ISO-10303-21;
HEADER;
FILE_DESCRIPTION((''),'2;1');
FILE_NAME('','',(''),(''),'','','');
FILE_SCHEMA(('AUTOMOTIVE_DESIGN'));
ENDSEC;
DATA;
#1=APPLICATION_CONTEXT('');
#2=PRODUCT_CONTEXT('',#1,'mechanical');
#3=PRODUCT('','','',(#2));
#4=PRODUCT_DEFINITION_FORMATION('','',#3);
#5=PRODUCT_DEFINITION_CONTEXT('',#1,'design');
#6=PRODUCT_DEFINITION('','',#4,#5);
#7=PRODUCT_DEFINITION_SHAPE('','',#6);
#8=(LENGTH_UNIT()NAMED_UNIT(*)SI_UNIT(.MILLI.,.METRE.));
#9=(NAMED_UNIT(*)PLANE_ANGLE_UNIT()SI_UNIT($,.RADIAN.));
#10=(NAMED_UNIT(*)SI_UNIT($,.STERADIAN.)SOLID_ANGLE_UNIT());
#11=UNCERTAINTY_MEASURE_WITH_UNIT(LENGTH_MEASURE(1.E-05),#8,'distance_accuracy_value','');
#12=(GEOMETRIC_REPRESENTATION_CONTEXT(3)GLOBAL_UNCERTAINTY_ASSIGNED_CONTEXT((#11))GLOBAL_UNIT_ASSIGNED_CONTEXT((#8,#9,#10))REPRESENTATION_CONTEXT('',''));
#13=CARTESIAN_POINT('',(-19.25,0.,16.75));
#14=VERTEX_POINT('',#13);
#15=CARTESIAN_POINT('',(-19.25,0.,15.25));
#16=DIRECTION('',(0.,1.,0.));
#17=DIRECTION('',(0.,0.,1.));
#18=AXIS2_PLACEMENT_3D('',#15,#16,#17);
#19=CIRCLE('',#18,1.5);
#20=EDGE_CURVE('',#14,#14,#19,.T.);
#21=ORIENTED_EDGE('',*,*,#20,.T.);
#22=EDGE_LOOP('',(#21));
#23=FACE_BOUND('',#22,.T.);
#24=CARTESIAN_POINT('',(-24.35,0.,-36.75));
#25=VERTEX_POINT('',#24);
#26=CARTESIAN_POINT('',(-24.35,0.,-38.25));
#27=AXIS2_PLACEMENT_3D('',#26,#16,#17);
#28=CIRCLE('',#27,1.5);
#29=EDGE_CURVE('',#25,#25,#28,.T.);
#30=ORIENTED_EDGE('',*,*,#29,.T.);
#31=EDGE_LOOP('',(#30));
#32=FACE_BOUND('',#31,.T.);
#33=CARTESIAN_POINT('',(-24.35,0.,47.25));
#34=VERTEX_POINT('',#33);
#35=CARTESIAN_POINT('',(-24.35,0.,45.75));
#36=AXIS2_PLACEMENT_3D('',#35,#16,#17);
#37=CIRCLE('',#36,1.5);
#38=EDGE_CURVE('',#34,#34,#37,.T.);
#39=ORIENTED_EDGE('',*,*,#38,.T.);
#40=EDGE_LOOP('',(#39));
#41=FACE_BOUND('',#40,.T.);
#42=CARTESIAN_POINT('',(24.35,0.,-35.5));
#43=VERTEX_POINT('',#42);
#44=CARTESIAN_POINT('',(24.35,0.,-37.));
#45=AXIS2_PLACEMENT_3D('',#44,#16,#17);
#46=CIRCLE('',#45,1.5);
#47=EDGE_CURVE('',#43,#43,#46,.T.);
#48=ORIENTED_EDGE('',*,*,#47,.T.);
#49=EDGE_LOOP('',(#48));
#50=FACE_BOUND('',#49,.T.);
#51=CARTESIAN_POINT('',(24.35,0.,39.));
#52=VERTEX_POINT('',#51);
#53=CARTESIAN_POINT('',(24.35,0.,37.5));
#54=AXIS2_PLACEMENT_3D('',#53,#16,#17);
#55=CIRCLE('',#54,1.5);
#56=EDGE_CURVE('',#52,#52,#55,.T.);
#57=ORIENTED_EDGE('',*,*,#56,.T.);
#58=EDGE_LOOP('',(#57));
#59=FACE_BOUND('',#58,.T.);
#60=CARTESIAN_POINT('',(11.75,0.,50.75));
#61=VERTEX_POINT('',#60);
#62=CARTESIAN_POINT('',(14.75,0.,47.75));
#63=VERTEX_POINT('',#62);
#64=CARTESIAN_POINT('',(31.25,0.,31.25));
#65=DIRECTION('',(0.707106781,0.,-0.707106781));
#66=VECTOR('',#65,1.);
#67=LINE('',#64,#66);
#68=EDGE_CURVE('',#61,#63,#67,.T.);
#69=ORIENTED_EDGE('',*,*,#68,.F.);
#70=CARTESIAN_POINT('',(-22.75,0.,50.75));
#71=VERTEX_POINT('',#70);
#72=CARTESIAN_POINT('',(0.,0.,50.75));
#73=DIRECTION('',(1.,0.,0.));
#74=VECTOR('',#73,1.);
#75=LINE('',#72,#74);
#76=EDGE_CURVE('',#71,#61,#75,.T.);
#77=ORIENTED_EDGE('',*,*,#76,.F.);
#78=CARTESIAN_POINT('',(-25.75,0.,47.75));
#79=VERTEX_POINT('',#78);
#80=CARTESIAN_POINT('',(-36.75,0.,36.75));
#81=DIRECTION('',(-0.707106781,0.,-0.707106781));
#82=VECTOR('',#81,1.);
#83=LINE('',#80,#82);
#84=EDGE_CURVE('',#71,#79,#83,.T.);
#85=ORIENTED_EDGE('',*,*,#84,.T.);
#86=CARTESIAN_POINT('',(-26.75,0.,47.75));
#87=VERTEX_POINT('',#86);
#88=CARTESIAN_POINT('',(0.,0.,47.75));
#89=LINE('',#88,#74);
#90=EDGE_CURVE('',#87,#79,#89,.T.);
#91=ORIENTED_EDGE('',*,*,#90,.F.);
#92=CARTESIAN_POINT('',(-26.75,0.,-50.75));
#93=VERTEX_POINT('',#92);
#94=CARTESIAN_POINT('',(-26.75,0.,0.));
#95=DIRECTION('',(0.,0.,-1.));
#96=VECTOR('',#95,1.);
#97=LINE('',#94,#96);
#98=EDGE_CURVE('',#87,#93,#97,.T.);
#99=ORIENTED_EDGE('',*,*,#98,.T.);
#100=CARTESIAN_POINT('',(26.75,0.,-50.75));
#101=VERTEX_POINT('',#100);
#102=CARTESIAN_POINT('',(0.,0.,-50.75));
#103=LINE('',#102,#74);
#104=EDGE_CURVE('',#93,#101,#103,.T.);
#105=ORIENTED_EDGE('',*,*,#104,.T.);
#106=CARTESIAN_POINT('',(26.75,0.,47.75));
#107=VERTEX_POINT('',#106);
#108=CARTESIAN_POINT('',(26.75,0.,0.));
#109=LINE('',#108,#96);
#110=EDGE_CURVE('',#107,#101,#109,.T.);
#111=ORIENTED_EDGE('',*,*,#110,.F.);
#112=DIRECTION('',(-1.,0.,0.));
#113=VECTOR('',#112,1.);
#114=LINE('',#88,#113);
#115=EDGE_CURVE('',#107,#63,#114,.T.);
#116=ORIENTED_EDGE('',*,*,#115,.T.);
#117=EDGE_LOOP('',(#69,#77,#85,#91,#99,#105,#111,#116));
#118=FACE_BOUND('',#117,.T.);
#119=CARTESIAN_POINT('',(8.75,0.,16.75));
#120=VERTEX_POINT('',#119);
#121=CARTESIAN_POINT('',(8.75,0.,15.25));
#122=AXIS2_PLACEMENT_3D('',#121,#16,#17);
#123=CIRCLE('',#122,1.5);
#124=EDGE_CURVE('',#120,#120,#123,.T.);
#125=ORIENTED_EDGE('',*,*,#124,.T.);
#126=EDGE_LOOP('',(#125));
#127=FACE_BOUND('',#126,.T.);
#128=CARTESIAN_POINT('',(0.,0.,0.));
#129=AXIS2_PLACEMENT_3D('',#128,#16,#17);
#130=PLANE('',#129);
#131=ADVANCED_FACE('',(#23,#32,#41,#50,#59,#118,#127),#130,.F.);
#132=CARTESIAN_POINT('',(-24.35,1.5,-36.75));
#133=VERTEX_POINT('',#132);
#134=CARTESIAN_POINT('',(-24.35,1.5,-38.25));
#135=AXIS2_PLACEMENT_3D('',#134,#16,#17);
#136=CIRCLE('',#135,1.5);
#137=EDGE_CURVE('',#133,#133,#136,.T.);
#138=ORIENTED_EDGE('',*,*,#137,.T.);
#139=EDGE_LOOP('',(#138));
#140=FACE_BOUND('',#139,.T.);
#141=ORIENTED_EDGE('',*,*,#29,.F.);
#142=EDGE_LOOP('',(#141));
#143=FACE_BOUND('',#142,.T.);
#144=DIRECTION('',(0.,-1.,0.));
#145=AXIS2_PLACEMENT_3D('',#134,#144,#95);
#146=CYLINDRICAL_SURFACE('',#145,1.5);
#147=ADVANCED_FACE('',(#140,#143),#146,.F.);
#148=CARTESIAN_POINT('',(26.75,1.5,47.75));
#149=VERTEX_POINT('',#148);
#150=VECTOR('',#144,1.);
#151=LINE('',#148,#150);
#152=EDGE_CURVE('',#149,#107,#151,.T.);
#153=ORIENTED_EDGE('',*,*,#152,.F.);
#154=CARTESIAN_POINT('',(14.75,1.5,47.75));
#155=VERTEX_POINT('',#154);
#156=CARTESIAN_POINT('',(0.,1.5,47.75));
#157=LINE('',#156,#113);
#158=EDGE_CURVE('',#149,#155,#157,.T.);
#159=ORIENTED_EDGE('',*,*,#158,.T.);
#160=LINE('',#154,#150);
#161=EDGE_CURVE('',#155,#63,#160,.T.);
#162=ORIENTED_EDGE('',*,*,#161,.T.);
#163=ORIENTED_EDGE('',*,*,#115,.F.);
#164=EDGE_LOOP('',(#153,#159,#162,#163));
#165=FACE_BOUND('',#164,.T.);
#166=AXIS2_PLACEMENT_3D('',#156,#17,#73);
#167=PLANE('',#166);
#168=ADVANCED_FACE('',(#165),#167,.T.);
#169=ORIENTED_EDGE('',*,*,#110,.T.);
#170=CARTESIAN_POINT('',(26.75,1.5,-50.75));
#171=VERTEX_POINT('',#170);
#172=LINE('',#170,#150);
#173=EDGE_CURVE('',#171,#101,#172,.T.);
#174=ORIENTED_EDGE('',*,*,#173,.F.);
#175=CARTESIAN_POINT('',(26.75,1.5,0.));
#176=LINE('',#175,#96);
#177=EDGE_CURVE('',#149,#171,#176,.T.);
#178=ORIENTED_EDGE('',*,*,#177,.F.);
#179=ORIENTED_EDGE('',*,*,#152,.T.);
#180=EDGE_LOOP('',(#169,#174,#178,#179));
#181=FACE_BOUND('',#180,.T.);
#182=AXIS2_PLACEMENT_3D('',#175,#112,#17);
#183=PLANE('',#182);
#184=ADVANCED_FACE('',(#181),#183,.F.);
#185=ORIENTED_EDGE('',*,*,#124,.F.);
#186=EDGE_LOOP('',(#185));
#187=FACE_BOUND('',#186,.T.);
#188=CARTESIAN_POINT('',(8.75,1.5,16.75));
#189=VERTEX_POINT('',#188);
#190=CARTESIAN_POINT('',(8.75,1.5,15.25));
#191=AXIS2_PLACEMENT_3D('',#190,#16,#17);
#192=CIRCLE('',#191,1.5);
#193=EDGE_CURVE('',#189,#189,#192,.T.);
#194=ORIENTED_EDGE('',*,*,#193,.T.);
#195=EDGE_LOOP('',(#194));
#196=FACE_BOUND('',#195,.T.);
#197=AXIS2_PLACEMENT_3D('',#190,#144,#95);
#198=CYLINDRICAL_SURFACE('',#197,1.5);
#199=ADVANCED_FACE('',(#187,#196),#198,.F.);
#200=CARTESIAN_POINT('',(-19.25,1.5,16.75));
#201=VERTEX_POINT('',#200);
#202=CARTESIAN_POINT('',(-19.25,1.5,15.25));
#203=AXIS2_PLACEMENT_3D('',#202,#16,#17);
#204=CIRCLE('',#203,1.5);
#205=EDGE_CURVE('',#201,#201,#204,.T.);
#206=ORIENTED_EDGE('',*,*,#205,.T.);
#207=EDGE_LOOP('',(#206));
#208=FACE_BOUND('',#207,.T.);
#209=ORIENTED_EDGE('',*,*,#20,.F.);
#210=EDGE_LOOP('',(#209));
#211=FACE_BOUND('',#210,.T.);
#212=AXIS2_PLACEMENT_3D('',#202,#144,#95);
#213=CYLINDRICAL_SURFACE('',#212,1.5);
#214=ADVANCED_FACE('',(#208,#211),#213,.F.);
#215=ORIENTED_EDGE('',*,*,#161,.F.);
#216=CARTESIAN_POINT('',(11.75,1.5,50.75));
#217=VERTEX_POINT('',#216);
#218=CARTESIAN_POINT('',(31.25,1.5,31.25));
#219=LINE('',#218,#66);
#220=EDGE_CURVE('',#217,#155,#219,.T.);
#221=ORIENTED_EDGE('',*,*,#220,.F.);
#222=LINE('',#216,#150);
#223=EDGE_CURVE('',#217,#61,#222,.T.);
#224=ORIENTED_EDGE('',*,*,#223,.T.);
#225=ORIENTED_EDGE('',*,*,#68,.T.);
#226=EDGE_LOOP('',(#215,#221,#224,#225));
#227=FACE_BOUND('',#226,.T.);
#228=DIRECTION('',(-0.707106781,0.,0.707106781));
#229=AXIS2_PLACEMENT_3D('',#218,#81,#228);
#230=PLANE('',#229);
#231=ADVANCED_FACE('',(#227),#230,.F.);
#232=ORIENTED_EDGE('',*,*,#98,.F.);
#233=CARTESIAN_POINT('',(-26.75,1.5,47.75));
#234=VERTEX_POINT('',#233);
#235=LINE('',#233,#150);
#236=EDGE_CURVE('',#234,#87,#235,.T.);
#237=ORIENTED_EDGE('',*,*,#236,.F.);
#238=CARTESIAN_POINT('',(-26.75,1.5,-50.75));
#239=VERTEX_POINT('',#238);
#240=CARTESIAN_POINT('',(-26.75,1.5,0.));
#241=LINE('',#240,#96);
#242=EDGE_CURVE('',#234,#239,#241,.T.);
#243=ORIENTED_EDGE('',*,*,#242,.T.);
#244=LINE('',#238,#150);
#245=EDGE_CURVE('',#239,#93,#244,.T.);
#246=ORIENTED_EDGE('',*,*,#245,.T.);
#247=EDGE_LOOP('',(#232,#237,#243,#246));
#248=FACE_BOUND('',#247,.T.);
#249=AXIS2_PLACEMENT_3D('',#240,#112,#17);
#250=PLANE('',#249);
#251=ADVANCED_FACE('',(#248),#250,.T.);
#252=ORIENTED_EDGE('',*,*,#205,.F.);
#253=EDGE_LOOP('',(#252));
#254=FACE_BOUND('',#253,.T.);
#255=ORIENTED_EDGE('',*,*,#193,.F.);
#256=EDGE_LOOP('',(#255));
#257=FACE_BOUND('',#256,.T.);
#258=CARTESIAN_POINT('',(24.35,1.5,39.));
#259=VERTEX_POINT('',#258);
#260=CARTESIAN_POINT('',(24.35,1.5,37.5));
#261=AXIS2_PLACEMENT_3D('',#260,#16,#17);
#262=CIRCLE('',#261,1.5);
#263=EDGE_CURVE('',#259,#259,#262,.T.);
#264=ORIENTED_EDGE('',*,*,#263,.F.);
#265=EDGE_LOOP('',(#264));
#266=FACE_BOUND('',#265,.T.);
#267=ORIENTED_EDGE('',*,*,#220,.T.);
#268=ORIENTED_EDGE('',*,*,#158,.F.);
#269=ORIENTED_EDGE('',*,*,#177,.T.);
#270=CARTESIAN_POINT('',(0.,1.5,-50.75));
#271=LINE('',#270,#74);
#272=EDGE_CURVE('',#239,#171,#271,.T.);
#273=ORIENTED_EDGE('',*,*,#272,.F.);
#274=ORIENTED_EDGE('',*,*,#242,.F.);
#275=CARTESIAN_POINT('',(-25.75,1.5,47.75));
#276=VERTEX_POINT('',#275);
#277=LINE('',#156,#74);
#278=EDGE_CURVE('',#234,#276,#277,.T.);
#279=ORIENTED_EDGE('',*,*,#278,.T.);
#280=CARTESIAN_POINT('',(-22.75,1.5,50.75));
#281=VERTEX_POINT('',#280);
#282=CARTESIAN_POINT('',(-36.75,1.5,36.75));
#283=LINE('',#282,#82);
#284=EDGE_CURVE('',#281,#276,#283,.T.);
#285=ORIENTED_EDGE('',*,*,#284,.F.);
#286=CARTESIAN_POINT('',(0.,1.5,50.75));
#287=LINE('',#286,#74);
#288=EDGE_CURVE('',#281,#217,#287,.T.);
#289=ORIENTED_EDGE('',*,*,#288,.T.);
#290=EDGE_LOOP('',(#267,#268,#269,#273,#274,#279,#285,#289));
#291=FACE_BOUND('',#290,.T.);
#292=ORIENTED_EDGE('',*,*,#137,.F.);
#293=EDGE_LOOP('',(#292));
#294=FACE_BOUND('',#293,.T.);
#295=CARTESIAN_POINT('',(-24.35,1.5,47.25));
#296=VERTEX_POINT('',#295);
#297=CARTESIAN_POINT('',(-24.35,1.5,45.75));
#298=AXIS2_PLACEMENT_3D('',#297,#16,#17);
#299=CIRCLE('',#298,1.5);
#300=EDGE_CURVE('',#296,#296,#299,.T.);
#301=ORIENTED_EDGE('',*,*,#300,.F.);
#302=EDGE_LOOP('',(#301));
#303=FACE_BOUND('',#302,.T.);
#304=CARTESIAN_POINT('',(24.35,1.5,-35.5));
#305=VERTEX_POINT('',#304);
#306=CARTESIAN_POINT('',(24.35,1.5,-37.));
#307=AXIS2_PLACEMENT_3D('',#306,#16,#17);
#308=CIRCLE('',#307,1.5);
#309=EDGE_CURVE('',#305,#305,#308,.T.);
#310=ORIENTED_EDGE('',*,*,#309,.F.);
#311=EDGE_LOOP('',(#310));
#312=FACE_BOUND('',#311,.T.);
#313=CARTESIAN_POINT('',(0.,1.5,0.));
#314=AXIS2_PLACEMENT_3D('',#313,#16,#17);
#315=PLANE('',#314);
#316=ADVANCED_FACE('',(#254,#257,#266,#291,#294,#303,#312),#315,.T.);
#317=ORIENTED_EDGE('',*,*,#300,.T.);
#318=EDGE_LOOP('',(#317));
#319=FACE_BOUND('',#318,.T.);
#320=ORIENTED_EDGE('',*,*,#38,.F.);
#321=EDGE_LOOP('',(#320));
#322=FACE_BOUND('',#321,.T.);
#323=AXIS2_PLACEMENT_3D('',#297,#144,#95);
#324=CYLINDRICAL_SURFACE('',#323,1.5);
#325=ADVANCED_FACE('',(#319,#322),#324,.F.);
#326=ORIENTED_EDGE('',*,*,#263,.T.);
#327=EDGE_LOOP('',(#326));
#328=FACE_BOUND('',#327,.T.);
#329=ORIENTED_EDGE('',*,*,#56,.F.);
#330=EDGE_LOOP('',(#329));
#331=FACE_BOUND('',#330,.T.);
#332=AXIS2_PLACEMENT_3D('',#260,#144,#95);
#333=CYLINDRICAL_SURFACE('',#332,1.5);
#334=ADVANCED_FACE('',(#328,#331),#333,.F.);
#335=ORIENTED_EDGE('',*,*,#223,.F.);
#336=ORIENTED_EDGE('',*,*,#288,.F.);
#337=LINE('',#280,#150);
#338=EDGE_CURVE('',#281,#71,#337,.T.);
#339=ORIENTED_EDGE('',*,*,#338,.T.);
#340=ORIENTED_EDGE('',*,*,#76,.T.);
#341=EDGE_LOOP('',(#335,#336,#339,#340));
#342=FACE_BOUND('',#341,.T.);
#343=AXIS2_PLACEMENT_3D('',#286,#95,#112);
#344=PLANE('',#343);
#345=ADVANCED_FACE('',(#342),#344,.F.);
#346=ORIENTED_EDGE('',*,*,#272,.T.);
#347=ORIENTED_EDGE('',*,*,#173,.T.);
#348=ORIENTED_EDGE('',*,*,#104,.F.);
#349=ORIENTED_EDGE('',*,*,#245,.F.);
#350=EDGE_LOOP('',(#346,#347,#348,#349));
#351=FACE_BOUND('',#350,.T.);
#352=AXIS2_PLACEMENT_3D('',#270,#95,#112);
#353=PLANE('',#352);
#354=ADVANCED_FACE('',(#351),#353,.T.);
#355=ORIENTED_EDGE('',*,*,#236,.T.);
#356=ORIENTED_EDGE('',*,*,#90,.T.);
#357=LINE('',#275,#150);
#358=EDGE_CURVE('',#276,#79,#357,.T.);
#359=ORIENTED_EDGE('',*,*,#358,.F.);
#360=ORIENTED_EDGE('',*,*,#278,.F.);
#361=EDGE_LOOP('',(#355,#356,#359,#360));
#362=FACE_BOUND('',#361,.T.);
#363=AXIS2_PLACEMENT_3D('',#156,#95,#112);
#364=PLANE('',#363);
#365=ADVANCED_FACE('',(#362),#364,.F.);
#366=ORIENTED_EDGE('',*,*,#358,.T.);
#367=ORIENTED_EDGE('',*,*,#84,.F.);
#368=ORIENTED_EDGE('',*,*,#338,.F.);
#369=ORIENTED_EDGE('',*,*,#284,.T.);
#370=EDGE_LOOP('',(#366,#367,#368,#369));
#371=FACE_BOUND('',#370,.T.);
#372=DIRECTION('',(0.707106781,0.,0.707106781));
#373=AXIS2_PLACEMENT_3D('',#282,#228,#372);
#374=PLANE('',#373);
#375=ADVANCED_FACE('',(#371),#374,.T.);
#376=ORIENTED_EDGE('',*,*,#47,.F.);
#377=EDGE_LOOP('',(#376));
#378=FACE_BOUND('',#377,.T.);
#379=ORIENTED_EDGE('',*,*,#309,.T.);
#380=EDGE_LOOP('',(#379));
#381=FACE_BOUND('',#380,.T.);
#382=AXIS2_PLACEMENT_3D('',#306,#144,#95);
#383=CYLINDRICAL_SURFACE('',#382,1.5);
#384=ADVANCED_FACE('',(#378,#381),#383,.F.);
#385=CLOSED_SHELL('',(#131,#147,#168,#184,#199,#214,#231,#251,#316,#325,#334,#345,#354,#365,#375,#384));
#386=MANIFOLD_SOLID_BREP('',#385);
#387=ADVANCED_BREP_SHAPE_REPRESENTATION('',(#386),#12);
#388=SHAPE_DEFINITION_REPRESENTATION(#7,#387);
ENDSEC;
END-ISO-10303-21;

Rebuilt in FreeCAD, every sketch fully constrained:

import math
import FreeCAD as App
import Part
import Sketcher

V = App.Vector

doc = App.newDocument("Part")
body = doc.addObject("PartDesign::Body", "Body")

sketch1 = body.newObject("Sketcher::SketchObject", "Sketch")
sketch1.AttachmentSupport = (doc.getObject("XZ_Plane"), [""])
sketch1.MapMode = "FlatFace"
sketch1.addGeometry(Part.LineSegment(V(-22.75, 50.75, 0), V(11.75, 50.75, 0)), False)
sketch1.addGeometry(Part.LineSegment(V(11.75, 50.75, 0), V(14.75, 47.75, 0)), False)
sketch1.addGeometry(Part.LineSegment(V(14.75, 47.75, 0), V(26.75, 47.75, 0)), False)
sketch1.addGeometry(Part.LineSegment(V(26.75, 47.75, 0), V(26.75, -50.75, 0)), False)
sketch1.addGeometry(Part.LineSegment(V(26.75, -50.75, 0), V(-26.75, -50.75, 0)), False)
sketch1.addGeometry(Part.LineSegment(V(-26.75, -50.75, 0), V(-26.75, 47.75, 0)), False)
sketch1.addGeometry(Part.LineSegment(V(-26.75, 47.75, 0), V(-25.75, 47.75, 0)), False)
sketch1.addGeometry(Part.LineSegment(V(-25.75, 47.75, 0), V(-22.75, 50.75, 0)), False)
sketch1.addGeometry(Part.Circle(V(-24.35, 45.75, 0), V(0, 0, 1), 1.5), False)
sketch1.addGeometry(Part.Circle(V(-19.25, 15.25, 0), V(0, 0, 1), 1.5), False)
sketch1.addGeometry(Part.Circle(V(24.35, 37.5, 0), V(0, 0, 1), 1.5), False)
sketch1.addGeometry(Part.Circle(V(8.75, 15.25, 0), V(0, 0, 1), 1.5), False)
sketch1.addGeometry(Part.Circle(V(-24.35, -38.25, 0), V(0, 0, 1), 1.5), False)
sketch1.addGeometry(Part.ArcOfCircle(Part.Circle(V(24.35, -37, 0), V(0, 0, 1), 1.5), math.radians(0), math.radians(90)), False)
sketch1.addGeometry(Part.ArcOfCircle(Part.Circle(V(24.35, -37, 0), V(0, 0, 1), 1.5), math.radians(90), math.radians(360)), False)
sketch1.addConstraint(Sketcher.Constraint("Coincident", 0, 2, 1, 1))
sketch1.addConstraint(Sketcher.Constraint("Coincident", 1, 2, 2, 1))
sketch1.addConstraint(Sketcher.Constraint("Coincident", 2, 2, 3, 1))
sketch1.addConstraint(Sketcher.Constraint("Coincident", 3, 2, 4, 1))
sketch1.addConstraint(Sketcher.Constraint("Coincident", 4, 2, 5, 1))
sketch1.addConstraint(Sketcher.Constraint("Coincident", 5, 2, 6, 1))
sketch1.addConstraint(Sketcher.Constraint("Coincident", 6, 2, 7, 1))
sketch1.addConstraint(Sketcher.Constraint("Coincident", 7, 2, 0, 1))
sketch1.addConstraint(Sketcher.Constraint("Tangent", 13, 1, 14, 2))
sketch1.addConstraint(Sketcher.Constraint("Coincident", 14, 1, 13, 2))
sketch1.addConstraint(Sketcher.Constraint("Horizontal", 0))
sketch1.addConstraint(Sketcher.Constraint("Horizontal", 2))
sketch1.addConstraint(Sketcher.Constraint("Vertical", 3))
sketch1.addConstraint(Sketcher.Constraint("Horizontal", 4))
sketch1.addConstraint(Sketcher.Constraint("Vertical", 5))
sketch1.addConstraint(Sketcher.Constraint("Horizontal", 6))
sketch1.addConstraint(Sketcher.Constraint("Equal", 8, 9))
sketch1.addConstraint(Sketcher.Constraint("Equal", 9, 10))
sketch1.addConstraint(Sketcher.Constraint("Equal", 10, 11))
sketch1.addConstraint(Sketcher.Constraint("Equal", 11, 12))
sketch1.addConstraint(Sketcher.Constraint("Equal", 12, 13))
sketch1.addConstraint(Sketcher.Constraint("Symmetric", 2, 2, 5, 2, -2))
sketch1.addConstraint(Sketcher.Constraint("Perpendicular", 1, 7))
sketch1.addConstraint(Sketcher.Constraint("Horizontal", 9, 3, 11, 3))
sketch1.addConstraint(Sketcher.Constraint("Horizontal", 14, 3, 13, 1))
sketch1.addConstraint(Sketcher.Constraint("Vertical", 8, 3, 12, 3))
sketch1.addConstraint(Sketcher.Constraint("Vertical", 10, 3, 13, 3))
sketch1.addConstraint(Sketcher.Constraint("Vertical", 13, 3, 14, 1))
sketch1.addConstraint(Sketcher.Constraint("Equal", 1, 7))
sketch1.addConstraint(Sketcher.Constraint("Diameter", 8, 3.0))
sketch1.addConstraint(Sketcher.Constraint("DistanceX", 2, 1, 2, 2, 12.0))
sketch1.addConstraint(Sketcher.Constraint("DistanceX", 6, 1, 6, 2, 1.0))
sketch1.addConstraint(Sketcher.Constraint("DistanceX", 0, 1, 0, 2, 34.5))
sketch1.addConstraint(Sketcher.Constraint("DistanceX", 4, 2, 4, 1, 53.5))
sketch1.addConstraint(Sketcher.Constraint("DistanceY", 3, 2, 3, 1, 98.5))
sketch1.addConstraint(Sketcher.Constraint("DistanceY", 13, 3, -1, 1, 37.0))
sketch1.addConstraint(Sketcher.Constraint("DistanceX", 9, 3, 11, 3, 28.0))
sketch1.addConstraint(Sketcher.Constraint("DistanceY", 12, 3, 8, 3, 84.0))
sketch1.addConstraint(Sketcher.Constraint("DistanceX", 11, 3, 0, 2, 3.0))
sketch1.addConstraint(Sketcher.Constraint("DistanceY", 8, 3, 0, 2, 5.0))
sketch1.addConstraint(Sketcher.Constraint("DistanceY", 3, 2, 11, 3, 66.0))
sketch1.addConstraint(Sketcher.Constraint("DistanceY", -1, 1, 10, 3, 37.5))
sketch1.addConstraint(Sketcher.Constraint("DistanceX", 8, 3, 9, 3, 5.1))
sketch1.addConstraint(Sketcher.Constraint("DistanceX", 9, 3, 10, 3, 43.6))
sketch1.addConstraint(Sketcher.Constraint("DistanceY", -1, 1, 8, 3, 45.75))
pad1 = body.newObject("PartDesign::Pad", "Pad")
pad1.Profile = sketch1
pad1.Length = 1.5
pad1.Reversed = True

doc.recompute()
